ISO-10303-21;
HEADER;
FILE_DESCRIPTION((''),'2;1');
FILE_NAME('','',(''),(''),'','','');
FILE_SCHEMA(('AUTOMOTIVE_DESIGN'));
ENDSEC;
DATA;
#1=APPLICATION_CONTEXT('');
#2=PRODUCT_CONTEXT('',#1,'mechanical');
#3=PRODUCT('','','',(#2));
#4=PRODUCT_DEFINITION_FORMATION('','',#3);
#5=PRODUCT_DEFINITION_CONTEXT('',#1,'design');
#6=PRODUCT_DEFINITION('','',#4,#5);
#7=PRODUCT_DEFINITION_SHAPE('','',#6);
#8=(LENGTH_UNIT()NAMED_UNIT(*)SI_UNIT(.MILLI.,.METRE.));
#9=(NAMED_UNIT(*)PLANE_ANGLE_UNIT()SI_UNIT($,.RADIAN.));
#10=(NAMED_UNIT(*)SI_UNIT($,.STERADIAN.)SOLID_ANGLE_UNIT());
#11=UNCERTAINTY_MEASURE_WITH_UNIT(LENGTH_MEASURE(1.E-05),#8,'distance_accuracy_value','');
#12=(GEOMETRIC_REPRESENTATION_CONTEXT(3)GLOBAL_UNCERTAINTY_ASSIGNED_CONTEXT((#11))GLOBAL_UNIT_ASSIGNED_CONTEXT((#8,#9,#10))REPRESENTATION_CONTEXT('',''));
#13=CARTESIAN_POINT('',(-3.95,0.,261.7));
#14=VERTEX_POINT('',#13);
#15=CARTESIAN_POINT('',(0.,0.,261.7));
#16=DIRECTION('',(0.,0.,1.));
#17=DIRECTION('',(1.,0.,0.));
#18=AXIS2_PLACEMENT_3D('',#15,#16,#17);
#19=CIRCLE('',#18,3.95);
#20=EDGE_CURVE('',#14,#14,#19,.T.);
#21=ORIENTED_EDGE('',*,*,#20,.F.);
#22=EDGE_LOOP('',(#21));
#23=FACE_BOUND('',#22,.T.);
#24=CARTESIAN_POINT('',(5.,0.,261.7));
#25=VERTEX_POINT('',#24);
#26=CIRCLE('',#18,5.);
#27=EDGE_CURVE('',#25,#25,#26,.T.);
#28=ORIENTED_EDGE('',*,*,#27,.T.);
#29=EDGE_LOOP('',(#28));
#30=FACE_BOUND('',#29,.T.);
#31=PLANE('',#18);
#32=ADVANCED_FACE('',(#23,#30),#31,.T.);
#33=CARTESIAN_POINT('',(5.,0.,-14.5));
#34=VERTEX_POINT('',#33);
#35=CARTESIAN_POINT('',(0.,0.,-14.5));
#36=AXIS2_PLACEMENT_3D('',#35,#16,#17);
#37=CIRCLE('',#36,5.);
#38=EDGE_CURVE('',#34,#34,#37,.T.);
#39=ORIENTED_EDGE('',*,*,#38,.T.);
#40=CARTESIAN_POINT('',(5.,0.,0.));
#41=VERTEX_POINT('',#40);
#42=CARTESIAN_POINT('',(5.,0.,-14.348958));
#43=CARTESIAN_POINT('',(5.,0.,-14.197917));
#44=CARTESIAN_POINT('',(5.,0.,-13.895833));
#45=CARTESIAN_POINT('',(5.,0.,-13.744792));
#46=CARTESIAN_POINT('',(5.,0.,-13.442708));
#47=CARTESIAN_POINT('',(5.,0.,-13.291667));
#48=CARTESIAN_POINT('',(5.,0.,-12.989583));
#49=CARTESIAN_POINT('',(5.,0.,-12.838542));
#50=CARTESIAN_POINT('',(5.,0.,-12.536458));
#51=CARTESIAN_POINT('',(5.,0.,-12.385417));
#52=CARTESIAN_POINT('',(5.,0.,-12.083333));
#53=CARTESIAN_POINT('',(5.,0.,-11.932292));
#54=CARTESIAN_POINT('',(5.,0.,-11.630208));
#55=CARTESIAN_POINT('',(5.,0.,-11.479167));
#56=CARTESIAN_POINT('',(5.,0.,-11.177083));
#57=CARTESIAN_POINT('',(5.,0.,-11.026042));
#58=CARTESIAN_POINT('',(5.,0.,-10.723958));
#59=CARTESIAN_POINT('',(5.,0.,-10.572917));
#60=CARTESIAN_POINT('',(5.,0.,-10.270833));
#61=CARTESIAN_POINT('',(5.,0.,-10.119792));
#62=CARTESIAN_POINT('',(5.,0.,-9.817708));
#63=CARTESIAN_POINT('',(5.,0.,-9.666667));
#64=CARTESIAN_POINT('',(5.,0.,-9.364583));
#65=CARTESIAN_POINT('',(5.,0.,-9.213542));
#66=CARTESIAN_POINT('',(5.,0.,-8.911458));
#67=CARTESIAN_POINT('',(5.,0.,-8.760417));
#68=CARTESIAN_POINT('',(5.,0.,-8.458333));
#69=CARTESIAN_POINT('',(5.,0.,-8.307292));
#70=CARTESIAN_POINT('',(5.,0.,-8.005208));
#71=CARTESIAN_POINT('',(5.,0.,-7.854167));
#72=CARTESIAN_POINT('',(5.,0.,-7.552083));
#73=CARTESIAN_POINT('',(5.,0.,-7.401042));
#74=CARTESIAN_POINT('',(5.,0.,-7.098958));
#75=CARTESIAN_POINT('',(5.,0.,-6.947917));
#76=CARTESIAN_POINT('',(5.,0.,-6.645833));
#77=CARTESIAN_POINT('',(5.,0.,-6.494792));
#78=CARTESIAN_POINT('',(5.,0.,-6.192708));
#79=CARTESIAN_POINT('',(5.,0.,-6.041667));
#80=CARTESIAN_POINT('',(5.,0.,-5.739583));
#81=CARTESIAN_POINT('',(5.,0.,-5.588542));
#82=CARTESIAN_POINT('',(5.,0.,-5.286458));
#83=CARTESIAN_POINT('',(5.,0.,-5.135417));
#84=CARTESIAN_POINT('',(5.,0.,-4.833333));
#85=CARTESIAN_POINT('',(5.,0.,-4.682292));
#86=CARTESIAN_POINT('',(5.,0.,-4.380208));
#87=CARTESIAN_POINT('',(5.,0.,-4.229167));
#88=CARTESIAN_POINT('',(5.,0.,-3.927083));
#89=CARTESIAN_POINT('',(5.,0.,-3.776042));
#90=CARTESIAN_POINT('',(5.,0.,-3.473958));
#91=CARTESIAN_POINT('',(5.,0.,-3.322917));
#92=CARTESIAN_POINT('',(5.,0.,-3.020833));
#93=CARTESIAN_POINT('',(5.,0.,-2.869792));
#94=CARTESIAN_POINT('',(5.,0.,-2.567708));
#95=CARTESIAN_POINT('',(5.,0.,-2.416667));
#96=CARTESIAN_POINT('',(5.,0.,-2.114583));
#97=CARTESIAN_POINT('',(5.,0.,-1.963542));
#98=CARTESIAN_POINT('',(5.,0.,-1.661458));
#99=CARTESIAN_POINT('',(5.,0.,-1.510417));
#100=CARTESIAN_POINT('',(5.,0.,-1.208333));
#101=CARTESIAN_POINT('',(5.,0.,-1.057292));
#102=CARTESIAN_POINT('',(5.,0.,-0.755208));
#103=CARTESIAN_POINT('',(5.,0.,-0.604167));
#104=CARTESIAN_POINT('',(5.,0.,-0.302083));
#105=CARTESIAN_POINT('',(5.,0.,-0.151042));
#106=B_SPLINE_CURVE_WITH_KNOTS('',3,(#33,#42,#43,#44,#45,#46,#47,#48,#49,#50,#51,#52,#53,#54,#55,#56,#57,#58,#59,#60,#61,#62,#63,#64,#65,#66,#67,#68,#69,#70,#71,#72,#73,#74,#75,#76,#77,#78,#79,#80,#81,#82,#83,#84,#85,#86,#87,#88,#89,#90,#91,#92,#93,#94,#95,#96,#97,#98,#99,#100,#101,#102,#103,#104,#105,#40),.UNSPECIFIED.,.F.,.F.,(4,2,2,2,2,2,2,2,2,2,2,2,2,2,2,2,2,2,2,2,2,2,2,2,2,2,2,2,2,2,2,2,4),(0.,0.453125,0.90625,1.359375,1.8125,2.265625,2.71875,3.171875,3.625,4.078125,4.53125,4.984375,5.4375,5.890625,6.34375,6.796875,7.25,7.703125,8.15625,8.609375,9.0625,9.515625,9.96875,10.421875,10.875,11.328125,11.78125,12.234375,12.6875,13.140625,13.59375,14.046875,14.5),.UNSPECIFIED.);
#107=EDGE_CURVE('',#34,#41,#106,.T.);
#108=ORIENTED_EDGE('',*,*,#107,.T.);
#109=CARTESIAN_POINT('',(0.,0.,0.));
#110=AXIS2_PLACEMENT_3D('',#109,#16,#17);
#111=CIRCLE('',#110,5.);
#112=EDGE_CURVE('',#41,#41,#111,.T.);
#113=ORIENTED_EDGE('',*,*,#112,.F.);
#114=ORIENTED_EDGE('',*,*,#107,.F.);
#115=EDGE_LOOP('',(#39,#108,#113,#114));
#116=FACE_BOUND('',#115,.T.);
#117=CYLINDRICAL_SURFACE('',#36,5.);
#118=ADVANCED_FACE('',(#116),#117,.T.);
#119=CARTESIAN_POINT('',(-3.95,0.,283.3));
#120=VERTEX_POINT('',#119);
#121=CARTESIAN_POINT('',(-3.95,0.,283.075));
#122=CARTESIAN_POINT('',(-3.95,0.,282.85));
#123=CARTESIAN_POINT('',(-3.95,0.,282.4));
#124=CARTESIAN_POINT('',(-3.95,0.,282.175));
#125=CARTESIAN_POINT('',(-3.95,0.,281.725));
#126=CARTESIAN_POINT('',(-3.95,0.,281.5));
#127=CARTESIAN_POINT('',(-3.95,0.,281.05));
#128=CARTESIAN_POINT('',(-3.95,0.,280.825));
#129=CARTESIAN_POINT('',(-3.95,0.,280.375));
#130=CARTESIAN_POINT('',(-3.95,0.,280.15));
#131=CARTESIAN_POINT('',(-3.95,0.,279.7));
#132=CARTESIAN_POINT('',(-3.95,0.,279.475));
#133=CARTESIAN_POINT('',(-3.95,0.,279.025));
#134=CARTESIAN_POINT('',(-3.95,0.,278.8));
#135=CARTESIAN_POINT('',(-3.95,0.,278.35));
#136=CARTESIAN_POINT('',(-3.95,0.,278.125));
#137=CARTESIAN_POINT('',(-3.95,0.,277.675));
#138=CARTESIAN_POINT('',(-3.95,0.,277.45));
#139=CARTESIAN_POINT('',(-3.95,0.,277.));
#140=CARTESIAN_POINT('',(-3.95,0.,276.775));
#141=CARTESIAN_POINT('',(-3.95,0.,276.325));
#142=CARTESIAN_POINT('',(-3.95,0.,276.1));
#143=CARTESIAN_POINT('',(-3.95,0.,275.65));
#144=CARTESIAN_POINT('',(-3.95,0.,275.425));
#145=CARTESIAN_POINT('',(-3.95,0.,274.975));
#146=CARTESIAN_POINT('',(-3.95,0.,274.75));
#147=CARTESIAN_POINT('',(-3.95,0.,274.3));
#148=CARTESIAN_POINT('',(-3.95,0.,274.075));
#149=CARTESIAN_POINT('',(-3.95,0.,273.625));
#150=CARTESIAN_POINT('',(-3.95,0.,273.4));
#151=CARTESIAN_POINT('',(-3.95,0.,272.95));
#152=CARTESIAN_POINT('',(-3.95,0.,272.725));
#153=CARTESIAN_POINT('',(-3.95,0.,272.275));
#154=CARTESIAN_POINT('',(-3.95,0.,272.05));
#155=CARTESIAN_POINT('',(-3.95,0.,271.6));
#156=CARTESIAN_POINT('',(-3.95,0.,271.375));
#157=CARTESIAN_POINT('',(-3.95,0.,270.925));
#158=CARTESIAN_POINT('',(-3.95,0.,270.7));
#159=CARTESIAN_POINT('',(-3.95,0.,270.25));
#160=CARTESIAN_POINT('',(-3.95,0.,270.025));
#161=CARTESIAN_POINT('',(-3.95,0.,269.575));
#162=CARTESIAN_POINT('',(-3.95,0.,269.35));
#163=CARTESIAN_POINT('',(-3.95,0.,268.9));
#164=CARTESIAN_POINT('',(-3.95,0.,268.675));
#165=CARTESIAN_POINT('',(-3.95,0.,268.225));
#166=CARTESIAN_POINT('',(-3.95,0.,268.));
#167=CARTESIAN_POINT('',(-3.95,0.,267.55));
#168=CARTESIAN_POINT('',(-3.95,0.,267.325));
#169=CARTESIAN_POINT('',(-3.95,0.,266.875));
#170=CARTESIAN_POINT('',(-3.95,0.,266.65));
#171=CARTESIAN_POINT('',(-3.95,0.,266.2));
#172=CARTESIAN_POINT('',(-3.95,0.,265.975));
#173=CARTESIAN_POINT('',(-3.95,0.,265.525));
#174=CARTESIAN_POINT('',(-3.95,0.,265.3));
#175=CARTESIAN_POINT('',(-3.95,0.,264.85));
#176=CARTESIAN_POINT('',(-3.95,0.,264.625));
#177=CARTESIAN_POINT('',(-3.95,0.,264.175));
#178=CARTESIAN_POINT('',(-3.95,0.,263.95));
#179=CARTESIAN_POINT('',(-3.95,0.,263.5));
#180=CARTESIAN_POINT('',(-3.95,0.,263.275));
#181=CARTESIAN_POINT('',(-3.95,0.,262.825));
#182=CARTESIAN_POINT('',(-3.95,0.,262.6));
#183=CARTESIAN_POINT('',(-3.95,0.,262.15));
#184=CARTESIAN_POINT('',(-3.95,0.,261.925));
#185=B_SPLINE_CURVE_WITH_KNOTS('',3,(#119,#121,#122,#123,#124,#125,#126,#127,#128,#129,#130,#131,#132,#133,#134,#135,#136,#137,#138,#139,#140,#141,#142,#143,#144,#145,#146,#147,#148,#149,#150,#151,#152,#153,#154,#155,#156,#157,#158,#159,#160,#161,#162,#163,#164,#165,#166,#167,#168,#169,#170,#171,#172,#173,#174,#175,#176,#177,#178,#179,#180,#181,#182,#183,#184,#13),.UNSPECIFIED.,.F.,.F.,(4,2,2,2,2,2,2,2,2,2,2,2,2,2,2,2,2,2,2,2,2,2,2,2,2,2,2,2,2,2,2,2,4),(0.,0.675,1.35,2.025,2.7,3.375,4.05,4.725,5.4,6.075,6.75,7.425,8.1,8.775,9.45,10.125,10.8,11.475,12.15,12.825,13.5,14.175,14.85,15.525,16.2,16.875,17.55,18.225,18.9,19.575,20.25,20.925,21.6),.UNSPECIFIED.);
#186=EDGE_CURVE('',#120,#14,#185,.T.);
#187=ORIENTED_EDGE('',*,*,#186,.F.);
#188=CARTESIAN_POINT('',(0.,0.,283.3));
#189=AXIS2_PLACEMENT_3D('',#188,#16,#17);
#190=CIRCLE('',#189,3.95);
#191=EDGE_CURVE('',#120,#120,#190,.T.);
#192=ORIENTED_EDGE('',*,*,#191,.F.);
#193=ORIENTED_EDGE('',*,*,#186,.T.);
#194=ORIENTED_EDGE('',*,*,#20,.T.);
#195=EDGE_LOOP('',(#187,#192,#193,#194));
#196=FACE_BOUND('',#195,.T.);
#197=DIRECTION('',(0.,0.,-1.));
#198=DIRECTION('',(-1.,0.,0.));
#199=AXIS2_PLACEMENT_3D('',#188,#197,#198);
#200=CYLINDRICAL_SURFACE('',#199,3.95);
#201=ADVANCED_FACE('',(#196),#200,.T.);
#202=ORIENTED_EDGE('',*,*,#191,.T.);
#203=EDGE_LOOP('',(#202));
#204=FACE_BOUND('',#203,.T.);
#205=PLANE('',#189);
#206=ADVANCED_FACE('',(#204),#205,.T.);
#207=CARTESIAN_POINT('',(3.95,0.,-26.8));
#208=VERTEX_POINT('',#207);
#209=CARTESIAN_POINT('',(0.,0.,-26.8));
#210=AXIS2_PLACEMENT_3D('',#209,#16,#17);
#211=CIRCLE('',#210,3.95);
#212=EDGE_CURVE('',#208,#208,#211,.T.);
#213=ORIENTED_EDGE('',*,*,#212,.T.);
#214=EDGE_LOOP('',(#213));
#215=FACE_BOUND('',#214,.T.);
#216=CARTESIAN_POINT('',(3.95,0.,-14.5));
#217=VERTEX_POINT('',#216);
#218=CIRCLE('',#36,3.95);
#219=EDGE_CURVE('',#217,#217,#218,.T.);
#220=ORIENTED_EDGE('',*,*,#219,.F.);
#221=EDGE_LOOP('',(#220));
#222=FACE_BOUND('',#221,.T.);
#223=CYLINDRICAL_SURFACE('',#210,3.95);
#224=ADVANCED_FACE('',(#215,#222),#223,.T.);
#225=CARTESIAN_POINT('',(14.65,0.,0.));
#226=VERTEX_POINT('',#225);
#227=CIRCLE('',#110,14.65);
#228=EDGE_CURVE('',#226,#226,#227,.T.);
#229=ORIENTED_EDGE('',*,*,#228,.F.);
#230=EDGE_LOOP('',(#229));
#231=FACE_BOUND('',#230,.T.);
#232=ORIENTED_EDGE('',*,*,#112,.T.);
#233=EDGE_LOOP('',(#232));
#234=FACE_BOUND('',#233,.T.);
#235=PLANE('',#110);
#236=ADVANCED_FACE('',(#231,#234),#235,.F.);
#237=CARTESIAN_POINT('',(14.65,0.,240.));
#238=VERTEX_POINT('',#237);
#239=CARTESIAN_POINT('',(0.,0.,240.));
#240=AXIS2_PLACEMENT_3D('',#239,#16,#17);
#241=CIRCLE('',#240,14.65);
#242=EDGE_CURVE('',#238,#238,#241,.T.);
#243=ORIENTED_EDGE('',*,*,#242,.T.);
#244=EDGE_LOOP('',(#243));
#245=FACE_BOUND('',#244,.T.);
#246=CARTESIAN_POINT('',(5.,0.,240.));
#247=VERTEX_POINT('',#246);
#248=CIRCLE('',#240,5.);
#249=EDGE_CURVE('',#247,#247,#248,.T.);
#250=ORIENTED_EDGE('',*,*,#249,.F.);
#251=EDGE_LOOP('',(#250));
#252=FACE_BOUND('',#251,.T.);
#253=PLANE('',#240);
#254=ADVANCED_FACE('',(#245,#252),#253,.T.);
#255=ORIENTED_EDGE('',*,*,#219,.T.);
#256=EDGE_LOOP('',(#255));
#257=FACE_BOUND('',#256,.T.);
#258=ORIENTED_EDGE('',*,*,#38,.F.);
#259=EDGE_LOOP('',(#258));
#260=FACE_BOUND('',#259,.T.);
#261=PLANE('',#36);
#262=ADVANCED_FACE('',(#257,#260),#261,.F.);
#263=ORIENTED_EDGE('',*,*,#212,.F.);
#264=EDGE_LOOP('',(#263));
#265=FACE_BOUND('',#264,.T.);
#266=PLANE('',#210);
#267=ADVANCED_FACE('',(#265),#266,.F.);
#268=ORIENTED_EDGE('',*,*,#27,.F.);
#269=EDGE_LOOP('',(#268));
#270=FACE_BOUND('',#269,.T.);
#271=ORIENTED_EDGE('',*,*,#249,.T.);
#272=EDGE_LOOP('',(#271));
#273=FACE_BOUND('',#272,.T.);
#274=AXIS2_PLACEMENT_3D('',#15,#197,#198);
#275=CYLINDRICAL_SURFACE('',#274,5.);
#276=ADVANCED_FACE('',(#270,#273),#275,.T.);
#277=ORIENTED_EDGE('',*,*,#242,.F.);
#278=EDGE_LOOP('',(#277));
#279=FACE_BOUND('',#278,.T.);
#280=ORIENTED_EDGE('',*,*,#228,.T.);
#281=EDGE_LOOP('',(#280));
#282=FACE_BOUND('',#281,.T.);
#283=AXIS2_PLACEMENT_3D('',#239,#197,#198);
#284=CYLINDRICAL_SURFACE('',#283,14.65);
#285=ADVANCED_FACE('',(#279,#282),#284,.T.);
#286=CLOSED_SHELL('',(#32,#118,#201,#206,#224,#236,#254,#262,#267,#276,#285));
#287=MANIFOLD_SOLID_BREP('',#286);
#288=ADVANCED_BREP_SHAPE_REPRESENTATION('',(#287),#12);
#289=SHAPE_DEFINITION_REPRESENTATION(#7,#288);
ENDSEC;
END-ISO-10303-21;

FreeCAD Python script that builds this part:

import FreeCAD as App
import Part
import Sketcher
Q = App.Units.Quantity

doc = App.newDocument("Part")
body = doc.addObject("PartDesign::Body", "Body")

sketch1 = body.newObject("Sketcher::SketchObject", "Sketch")
sketch1.AttachmentSupport = (doc.getObject("XY_Plane"), [""])
sketch1.MapMode = "FlatFace"
sketch1.addGeometry(Part.Circle(App.Vector(0, 0, 0), App.Vector(0, 0, 1), 15), False)
sketch1.addConstraint([
    Sketcher.Constraint("Coincident", 0, 3, -1, 1),
    Sketcher.Constraint("Diameter", 0, Q("29.3 mm")),
])
pad1 = body.newObject("PartDesign::Pad", "Pad")
pad1.Profile = sketch1
pad1.Length = 240

sketch2 = body.newObject("Sketcher::SketchObject", "Sketch001")
sketch2.AttachmentSupport = (doc.getObject("XY_Plane"), [""])
sketch2.MapMode = "FlatFace"
sketch2.addGeometry(Part.Circle(App.Vector(0, 0, 0), App.Vector(0, 0, 1), 5), False)
sketch2.addConstraint([
    Sketcher.Constraint("Coincident", 0, 3, -1, 1),
    Sketcher.Constraint("Diameter", 0, Q("10 mm")),
])
pad2 = body.newObject("PartDesign::Pad", "Pad001")
pad2.Profile = sketch2
pad2.Length = 14.5
pad2.Reversed = True

sketch3 = body.newObject("Sketcher::SketchObject", "Sketch002")
sketch3.AttachmentSupport = (doc.getObject("XY_Plane"), [""])
sketch3.MapMode = "FlatFace"
sketch3.AttachmentOffset = App.Placement(App.Vector(0, 0, -14.5), App.Rotation())
sketch3.addGeometry(Part.Circle(App.Vector(0, 0, 0), App.Vector(0, 0, 1), 4), False)
sketch3.addConstraint([
    Sketcher.Constraint("Coincident", 0, 3, -1, 1),
    Sketcher.Constraint("Diameter", 0, Q("7.9 mm")),
])
pad3 = body.newObject("PartDesign::Pad", "Pad002")
pad3.Profile = sketch3
pad3.Length = 12.3
pad3.Reversed = True

sketch4 = body.newObject("Sketcher::SketchObject", "Sketch003")
sketch4.AttachmentSupport = (doc.getObject("XY_Plane"), [""])
sketch4.MapMode = "FlatFace"
sketch4.AttachmentOffset = App.Placement(App.Vector(0, 0, 261.7), App.Rotation())
sketch4.addGeometry(Part.Circle(App.Vector(0, 0, 0), App.Vector(0, 0, 1), 5), False)
sketch4.addConstraint([
    Sketcher.Constraint("Coincident", 0, 3, -1, 1),
    Sketcher.Constraint("Diameter", 0, Q("10 mm")),
])
pad4 = body.newObject("PartDesign::Pad", "Pad003")
pad4.Profile = sketch4
pad4.Length = 21.7
pad4.Reversed = True

sketch5 = body.newObject("Sketcher::SketchObject", "Sketch004")
sketch5.AttachmentSupport = (doc.getObject("XY_Plane"), [""])
sketch5.MapMode = "FlatFace"
sketch5.AttachmentOffset = App.Placement(App.Vector(0, 0, 283.3), App.Rotation())
sketch5.addGeometry(Part.Circle(App.Vector(0, 0, 0), App.Vector(0, 0, 1), 4), False)
sketch5.addConstraint([
    Sketcher.Constraint("Coincident", 0, 3, -1, 1),
    Sketcher.Constraint("Diameter", 0, Q("7.9 mm")),
])
pad5 = body.newObject("PartDesign::Pad", "Pad004")
pad5.Profile = sketch5
pad5.Length = 21.6
pad5.Reversed = True

doc.recompute()
